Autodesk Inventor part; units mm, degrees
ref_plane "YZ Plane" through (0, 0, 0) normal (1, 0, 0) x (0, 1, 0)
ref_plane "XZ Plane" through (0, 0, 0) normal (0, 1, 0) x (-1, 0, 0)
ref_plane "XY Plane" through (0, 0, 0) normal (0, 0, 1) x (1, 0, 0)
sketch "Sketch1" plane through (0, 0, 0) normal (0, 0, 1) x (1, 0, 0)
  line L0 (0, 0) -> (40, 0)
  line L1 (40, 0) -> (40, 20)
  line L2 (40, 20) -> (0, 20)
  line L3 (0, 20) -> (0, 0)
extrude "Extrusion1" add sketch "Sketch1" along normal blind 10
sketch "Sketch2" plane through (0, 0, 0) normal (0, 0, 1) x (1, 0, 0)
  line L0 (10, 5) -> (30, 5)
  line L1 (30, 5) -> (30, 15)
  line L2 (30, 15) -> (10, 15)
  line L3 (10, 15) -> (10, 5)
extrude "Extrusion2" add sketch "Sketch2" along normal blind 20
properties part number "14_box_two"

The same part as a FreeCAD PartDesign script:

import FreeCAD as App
import Part
import Sketcher
from FreeCAD import Vector
Q = App.Units.Quantity


def add_polygon(sketch, points):
    """Adds a closed chain of lines whose ends are joined by coincident constraints."""
    first, n = sketch.GeometryCount, len(points)
    for a, b in zip(points, points[1:] + points[:1]):
        sketch.addGeometry(Part.LineSegment(App.Vector(*a, 0), App.Vector(*b, 0)), False)
    for i in range(n):
        sketch.addConstraint(Sketcher.Constraint("Coincident", first + i, 2, first + (i + 1) % n, 1))

doc = App.newDocument("Part")
body = doc.addObject("PartDesign::Body", "Body")

sketch1 = doc.addObject("Sketcher::SketchObject", "Sketch")
body.addObject(sketch1)
sketch1.AttachmentSupport = (doc.XY_Plane, [""])
sketch1.MapMode = "FlatFace"
add_polygon(sketch1, [(0, 20), (0, 0), (40, 0), (40, 20)])
sketch1.addConstraint([
    Sketcher.Constraint("Vertical", 0),
    Sketcher.Constraint("Horizontal", 1),
    Sketcher.Constraint("Vertical", 2),
    Sketcher.Constraint("Horizontal", 3),
    Sketcher.Constraint("Coincident", 0, 2, -1, 1),
    Sketcher.Constraint("DistanceX", 1, 1, 1, 2, Q("40 mm")),
    Sketcher.Constraint("DistanceY", 0, 2, 0, 1, Q("20 mm")),
])
pad1 = doc.addObject("PartDesign::Pad", "Pad")
body.addObject(pad1)
pad1.Profile = sketch1
pad1.Length = 10

sketch2 = doc.addObject("Sketcher::SketchObject", "Sketch001")
body.addObject(sketch2)
sketch2.AttachmentSupport = (doc.XY_Plane, [""])
sketch2.MapMode = "FlatFace"
add_polygon(sketch2, [(10, 15), (10, 5), (30, 5), (30, 15)])
sketch2.addConstraint([
    Sketcher.Constraint("Vertical", 0),
    Sketcher.Constraint("Horizontal", 1),
    Sketcher.Constraint("Vertical", 2),
    Sketcher.Constraint("Horizontal", 3),
    Sketcher.Constraint("DistanceX", 1, 1, 1, 2, Q("20 mm")),
    Sketcher.Constraint("DistanceY", 0, 2, 0, 1, Q("10 mm")),
    Sketcher.Constraint("DistanceX", -1, 1, 0, 2, Q("10 mm")),
    Sketcher.Constraint("DistanceY", -1, 1, 0, 2, Q("5 mm")),
])
pad2 = doc.addObject("PartDesign::Pad", "Pad001")
body.addObject(pad2)
pad2.Profile = sketch2
pad2.Length = 20

doc.recompute()
